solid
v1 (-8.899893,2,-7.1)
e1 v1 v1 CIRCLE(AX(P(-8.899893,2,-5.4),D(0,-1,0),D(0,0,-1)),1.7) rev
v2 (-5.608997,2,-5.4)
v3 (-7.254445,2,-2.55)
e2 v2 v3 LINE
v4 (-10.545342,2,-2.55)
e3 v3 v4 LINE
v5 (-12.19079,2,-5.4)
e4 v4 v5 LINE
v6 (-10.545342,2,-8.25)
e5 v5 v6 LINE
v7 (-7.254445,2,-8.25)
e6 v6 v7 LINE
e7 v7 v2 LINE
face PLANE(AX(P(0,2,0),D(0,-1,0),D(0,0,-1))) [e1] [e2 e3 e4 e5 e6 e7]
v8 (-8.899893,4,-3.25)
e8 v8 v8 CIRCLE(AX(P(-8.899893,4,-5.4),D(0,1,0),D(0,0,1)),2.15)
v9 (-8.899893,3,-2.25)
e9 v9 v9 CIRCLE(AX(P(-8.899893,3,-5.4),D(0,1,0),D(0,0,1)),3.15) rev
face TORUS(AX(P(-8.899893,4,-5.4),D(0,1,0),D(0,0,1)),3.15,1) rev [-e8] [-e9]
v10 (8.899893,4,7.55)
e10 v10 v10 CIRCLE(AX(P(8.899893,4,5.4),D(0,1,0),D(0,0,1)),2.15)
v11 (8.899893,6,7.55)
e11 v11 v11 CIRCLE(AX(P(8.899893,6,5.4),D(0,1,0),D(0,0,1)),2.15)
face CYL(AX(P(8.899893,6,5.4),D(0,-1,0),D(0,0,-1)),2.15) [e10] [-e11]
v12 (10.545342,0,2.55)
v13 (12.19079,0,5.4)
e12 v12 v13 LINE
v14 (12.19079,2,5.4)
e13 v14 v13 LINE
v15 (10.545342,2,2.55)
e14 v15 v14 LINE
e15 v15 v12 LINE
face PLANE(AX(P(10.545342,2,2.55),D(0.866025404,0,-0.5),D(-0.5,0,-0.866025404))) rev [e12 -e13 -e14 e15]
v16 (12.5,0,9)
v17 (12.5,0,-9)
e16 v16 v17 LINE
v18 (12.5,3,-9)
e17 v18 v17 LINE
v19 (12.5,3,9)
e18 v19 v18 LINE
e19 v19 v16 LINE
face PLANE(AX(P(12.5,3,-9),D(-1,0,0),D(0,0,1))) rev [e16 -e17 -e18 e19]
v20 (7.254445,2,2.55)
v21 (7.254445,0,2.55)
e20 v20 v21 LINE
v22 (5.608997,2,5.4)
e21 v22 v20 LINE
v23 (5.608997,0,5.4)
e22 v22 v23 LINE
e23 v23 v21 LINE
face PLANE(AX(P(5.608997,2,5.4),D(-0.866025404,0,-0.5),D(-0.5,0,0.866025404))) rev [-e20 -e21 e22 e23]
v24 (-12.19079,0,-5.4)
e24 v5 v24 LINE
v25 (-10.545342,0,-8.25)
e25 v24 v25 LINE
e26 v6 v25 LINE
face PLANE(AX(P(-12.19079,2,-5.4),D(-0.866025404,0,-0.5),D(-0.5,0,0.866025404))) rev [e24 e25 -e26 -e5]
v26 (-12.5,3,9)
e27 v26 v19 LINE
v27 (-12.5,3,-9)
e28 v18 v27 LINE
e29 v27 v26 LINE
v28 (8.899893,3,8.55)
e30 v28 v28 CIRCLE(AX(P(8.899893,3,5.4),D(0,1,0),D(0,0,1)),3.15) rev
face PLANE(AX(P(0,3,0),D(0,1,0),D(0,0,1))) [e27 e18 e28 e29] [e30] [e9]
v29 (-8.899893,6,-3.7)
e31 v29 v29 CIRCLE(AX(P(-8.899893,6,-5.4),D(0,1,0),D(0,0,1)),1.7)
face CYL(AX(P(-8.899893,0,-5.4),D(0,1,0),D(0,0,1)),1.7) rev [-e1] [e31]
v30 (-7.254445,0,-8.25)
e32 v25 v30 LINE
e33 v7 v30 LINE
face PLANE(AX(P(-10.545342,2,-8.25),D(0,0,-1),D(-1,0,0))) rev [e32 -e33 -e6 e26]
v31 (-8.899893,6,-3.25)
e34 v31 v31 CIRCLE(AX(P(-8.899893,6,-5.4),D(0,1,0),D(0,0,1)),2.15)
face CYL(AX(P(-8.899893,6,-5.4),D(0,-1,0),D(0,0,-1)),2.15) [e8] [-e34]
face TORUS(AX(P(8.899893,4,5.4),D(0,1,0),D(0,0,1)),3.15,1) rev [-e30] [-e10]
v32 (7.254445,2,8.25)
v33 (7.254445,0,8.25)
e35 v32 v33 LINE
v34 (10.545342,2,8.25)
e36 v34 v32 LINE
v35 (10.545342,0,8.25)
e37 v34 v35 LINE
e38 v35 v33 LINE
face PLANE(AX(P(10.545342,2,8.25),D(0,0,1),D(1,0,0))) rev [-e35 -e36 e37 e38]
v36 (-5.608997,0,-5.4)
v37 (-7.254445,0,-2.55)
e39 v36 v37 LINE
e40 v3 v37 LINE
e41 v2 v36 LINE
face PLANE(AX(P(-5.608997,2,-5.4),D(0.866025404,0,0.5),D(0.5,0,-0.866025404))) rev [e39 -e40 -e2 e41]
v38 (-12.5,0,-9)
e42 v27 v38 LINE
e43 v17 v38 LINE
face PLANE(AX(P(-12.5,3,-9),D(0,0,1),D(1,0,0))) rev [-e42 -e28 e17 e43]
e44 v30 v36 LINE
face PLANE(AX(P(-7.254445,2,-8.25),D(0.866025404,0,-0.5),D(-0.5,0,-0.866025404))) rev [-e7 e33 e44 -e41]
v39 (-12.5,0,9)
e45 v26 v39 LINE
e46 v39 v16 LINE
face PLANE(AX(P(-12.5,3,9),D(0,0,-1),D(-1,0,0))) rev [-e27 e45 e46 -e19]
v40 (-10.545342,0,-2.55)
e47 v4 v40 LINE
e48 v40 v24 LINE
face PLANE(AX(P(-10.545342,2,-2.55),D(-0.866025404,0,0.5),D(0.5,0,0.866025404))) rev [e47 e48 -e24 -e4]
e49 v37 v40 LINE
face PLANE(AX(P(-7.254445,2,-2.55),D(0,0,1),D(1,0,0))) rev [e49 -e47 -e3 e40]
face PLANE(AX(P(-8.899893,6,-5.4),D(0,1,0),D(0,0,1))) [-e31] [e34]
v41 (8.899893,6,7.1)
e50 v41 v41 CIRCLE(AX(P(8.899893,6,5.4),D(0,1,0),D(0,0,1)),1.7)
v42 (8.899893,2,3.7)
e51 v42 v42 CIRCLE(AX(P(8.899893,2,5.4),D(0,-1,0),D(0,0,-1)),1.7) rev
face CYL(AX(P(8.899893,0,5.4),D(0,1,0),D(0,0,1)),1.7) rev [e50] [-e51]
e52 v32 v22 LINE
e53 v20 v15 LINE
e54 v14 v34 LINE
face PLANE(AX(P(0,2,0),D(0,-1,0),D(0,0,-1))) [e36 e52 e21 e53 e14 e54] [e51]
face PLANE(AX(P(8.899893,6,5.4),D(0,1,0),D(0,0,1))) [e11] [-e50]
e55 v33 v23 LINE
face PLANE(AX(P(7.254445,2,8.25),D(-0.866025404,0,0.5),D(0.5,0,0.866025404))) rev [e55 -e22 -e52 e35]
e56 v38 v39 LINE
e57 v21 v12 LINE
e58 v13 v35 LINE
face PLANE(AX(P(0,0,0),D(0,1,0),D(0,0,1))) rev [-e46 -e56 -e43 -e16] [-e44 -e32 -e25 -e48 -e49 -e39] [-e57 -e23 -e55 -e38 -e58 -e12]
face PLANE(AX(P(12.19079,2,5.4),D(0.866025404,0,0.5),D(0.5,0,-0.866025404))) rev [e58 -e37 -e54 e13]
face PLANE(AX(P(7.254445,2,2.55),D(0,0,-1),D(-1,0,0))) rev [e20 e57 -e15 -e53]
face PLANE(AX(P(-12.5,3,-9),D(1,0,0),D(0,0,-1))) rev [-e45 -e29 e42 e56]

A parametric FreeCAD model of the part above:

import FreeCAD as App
import Part
import Sketcher

V = App.Vector
Q = App.Units.Quantity


def edges_at(feature, points):
    """Names of the edges that pass closest to the given points."""
    edges = feature.Shape.Edges
    near = lambda p: min(range(len(edges)), key=lambda i: edges[i].distToShape(Part.Vertex(*p))[0])
    return sorted({f"Edge{near(p) + 1}" for p in points})

doc = App.newDocument("Part")
params = doc.addObject("Spreadsheet::Sheet", "Params")
for row, (alias, value) in enumerate([
    ("sketch1_width", "25 mm"),
    ("sketch1_height", "18 mm"),
    ("pad1_length", "3 mm"),
    ("sketch2_diameter", "3.4 mm"),
    ("sketch3_diameter", "4.3 mm"),
    ("sketch3_diameter2", "3.4 mm"),
    ("pad2_length", "3 mm"),
    ("fillet_radius", "1 mm"),
    ("pocket2_length", "2 mm"),
], start=1):
    params.set(f"A{row}", alias)
    params.set(f"B{row}", "=" + value)
    params.setAlias(f"B{row}", alias)

body = doc.addObject("PartDesign::Body", "Body")

sketch1 = doc.addObject("Sketcher::SketchObject", "Sketch")
body.addObject(sketch1)
sketch1.AttachmentSupport = (doc.XZ_Plane, [""])
sketch1.MapMode = "FlatFace"
sketch1.addGeometry([
    Part.LineSegment(V(-12, -9, 0), V(-12, 9, 0)),
    Part.LineSegment(V(-12, 9, 0), V(12, 9, 0)),
    Part.LineSegment(V(12, 9, 0), V(12, -9, 0)),
    Part.LineSegment(V(12, -9, 0), V(-12, -9, 0)),
], False)
sketch1.addConstraint([
    Sketcher.Constraint("Coincident", 0, 2, 1, 1),
    Sketcher.Constraint("Coincident", 1, 2, 2, 1),
    Sketcher.Constraint("Coincident", 2, 2, 3, 1),
    Sketcher.Constraint("Coincident", 3, 2, 0, 1),
    Sketcher.Constraint("Vertical", 0),
    Sketcher.Constraint("Horizontal", 1),
    Sketcher.Constraint("Vertical", 2),
    Sketcher.Constraint("Horizontal", 3),
    Sketcher.Constraint("Symmetric", 0, 2, 2, 2, -1, 1),
    Sketcher.Constraint("DistanceX", 1, 1, 1, 2, Q("25 mm")),
    Sketcher.Constraint("DistanceY", 0, 1, 0, 2, Q("18 mm")),
])
sketch1.setExpression("Constraints[9]", "Params.sketch1_width")
sketch1.setExpression("Constraints[10]", "Params.sketch1_height")
pad1 = doc.addObject("PartDesign::Pad", "Pad")
body.addObject(pad1)
pad1.Profile = sketch1
pad1.setExpression("Length", "Params.pad1_length")
pad1.Reversed = True

sketch2 = doc.addObject("Sketcher::SketchObject", "Sketch001")
body.addObject(sketch2)
sketch2.AttachmentSupport = (doc.XZ_Plane, [""])
sketch2.MapMode = "FlatFace"
sketch2.AttachmentOffset = App.Placement(V(0, 0, -3), App.Rotation())
sketch2.addGeometry([
    Part.Circle(V(-8.9, -5.4, 0), V(0, 0, 1), 1.7),
    Part.Circle(V(8.9, 5.4, 0), V(0, 0, 1), 1.7),
], False)
sketch2.addConstraint([
    Sketcher.Constraint("Equal", 0, 1),
    Sketcher.Constraint("Symmetric", 0, 3, 1, 3, -1, 1),
    Sketcher.Constraint("Diameter", 0, Q("3.4 mm")),
    Sketcher.Constraint("DistanceY", 0, 3, -1, 1, Q("5.4 mm")),
    Sketcher.Constraint("DistanceX", 0, 3, -1, 1, Q("8.899893 mm")),
])
sketch2.setExpression("Constraints[2]", "Params.sketch2_diameter")
pocket1 = doc.addObject("PartDesign::Pocket", "Pocket")
body.addObject(pocket1)
pocket1.Profile = sketch2
pocket1.Type = "ThroughAll"
pocket1.Reversed = True

sketch3 = doc.addObject("Sketcher::SketchObject", "Sketch002")
body.addObject(sketch3)
sketch3.AttachmentSupport = (doc.XZ_Plane, [""])
sketch3.MapMode = "FlatFace"
sketch3.AttachmentOffset = App.Placement(V(0, 0, -6), App.Rotation())
sketch3.addGeometry([
    Part.Circle(V(-8.9, -5.4, 0), V(0, 0, 1), 2.1),
    Part.Circle(V(-8.9, -5.4, 0), V(0, 0, 1), 1.7),
    Part.Circle(V(8.9, 5.4, 0), V(0, 0, 1), 2.1),
    Part.Circle(V(8.9, 5.4, 0), V(0, 0, 1), 1.7),
], False)
sketch3.addConstraint([
    Sketcher.Constraint("Coincident", 1, 3, 0, 3),
    Sketcher.Constraint("Coincident", 3, 3, 2, 3),
    Sketcher.Constraint("Equal", 0, 2),
    Sketcher.Constraint("Equal", 1, 3),
    Sketcher.Constraint("Symmetric", 0, 3, 2, 3, -1, 1),
    Sketcher.Constraint("Diameter", 0, Q("4.3 mm")),
    Sketcher.Constraint("Diameter", 1, Q("3.4 mm")),
    Sketcher.Constraint("DistanceY", 0, 3, -1, 1, Q("5.4 mm")),
    Sketcher.Constraint("DistanceX", 0, 3, -1, 1, Q("8.899893 mm")),
])
sketch3.setExpression("Constraints[5]", "Params.sketch3_diameter")
sketch3.setExpression("Constraints[6]", "Params.sketch3_diameter2")
pad2 = doc.addObject("PartDesign::Pad", "Pad001")
body.addObject(pad2)
pad2.Profile = sketch3
pad2.setExpression("Length", "Params.pad2_length")
doc.recompute()

fillet = doc.addObject("PartDesign::Fillet", "Fillet")
body.addObject(fillet)
fillet.Base = (pad2, edges_at(pad2, [(-8.9, 3, -7.55), (8.9, 3, 3.25)]))
fillet.setExpression("Radius", "Params.fillet_radius")

sketch4 = doc.addObject("Sketcher::SketchObject", "Sketch003")
body.addObject(sketch4)
sketch4.AttachmentSupport = (doc.XZ_Plane, [""])
sketch4.MapMode = "FlatFace"
sketch4.addGeometry([
    Part.LineSegment(V(10.5, 2.5, 0), V(12.2, 5.4, 0)),
    Part.LineSegment(V(12.2, 5.4, 0), V(10.5, 8.2, 0)),
    Part.LineSegment(V(10.5, 8.2, 0), V(7.3, 8.2, 0)),
    Part.LineSegment(V(7.3, 8.2, 0), V(5.6, 5.4, 0)),
    Part.LineSegment(V(5.6, 5.4, 0), V(7.3, 2.5, 0)),
    Part.LineSegment(V(7.3, 2.5, 0), V(10.5, 2.5, 0)),
    Part.LineSegment(V(-7.3, -8.2, 0), V(-5.6, -5.4, 0)),
    Part.LineSegment(V(-5.6, -5.4, 0), V(-7.3, -2.5, 0)),
    Part.LineSegment(V(-7.3, -2.5, 0), V(-10.5, -2.5, 0)),
    Part.LineSegment(V(-10.5, -2.5, 0), V(-12.2, -5.4, 0)),
    Part.LineSegment(V(-12.2, -5.4, 0), V(-10.5, -8.2, 0)),
    Part.LineSegment(V(-10.5, -8.2, 0), V(-7.3, -8.2, 0)),
], False)
sketch4.addConstraint([
    Sketcher.Constraint("Coincident", 0, 2, 1, 1),
    Sketcher.Constraint("Coincident", 1, 2, 2, 1),
    Sketcher.Constraint("Coincident", 2, 2, 3, 1),
    Sketcher.Constraint("Coincident", 3, 2, 4, 1),
    Sketcher.Constraint("Coincident", 4, 2, 5, 1),
    Sketcher.Constraint("Coincident", 5, 2, 0, 1),
    Sketcher.Constraint("Coincident", 6, 2, 7, 1),
    Sketcher.Constraint("Coincident", 7, 2, 8, 1),
    Sketcher.Constraint("Coincident", 8, 2, 9, 1),
    Sketcher.Constraint("Coincident", 9, 2, 10, 1),
    Sketcher.Constraint("Coincident", 10, 2, 11, 1),
    Sketcher.Constraint("Coincident", 11, 2, 6, 1),
    Sketcher.Constraint("Horizontal", 2),
    Sketcher.Constraint("Horizontal", 5),
    Sketcher.Constraint("Horizontal", 8),
    Sketcher.Constraint("Horizontal", 11),
    Sketcher.Constraint("Symmetric", 3, 2, 6, 2, -1, 1),
    Sketcher.Constraint("Symmetric", 4, 2, 7, 2, -1, 1),
    Sketcher.Constraint("Symmetric", 0, 2, 9, 2, -1, 1),
    Sketcher.Constraint("Symmetric", 1, 2, 10, 2, -1, 1),
    Sketcher.Constraint("Parallel", 0, 3),
    Sketcher.Constraint("Parallel", 1, 4),
    Sketcher.Constraint("Parallel", 3, 6),
    Sketcher.Constraint("Parallel", 6, 9),
    Sketcher.Constraint("Horizontal", 0, 2, 3, 2),
    Sketcher.Constraint("Vertical", 2, 2, 4, 2),
    Sketcher.Constraint("Vertical", 1, 2, 5, 2),
    Sketcher.Constraint("Angle", 0, Q("60 deg")),
    Sketcher.Constraint("DistanceY", -1, 1, 0, 2, Q("5.4 mm")),
    Sketcher.Constraint("DistanceY", 4, 2, 2, 2, Q("5.7 mm")),
    Sketcher.Constraint("DistanceX", 2, 2, 2, 1, Q("3.290897 mm")),
    Sketcher.Constraint("DistanceX", -1, 1, 0, 2, Q("12.19079 mm")),
])
pocket2 = doc.addObject("PartDesign::Pocket", "Pocket001")
body.addObject(pocket2)
pocket2.Profile = sketch4
pocket2.setExpression("Length", "Params.pocket2_length")

doc.recompute()
